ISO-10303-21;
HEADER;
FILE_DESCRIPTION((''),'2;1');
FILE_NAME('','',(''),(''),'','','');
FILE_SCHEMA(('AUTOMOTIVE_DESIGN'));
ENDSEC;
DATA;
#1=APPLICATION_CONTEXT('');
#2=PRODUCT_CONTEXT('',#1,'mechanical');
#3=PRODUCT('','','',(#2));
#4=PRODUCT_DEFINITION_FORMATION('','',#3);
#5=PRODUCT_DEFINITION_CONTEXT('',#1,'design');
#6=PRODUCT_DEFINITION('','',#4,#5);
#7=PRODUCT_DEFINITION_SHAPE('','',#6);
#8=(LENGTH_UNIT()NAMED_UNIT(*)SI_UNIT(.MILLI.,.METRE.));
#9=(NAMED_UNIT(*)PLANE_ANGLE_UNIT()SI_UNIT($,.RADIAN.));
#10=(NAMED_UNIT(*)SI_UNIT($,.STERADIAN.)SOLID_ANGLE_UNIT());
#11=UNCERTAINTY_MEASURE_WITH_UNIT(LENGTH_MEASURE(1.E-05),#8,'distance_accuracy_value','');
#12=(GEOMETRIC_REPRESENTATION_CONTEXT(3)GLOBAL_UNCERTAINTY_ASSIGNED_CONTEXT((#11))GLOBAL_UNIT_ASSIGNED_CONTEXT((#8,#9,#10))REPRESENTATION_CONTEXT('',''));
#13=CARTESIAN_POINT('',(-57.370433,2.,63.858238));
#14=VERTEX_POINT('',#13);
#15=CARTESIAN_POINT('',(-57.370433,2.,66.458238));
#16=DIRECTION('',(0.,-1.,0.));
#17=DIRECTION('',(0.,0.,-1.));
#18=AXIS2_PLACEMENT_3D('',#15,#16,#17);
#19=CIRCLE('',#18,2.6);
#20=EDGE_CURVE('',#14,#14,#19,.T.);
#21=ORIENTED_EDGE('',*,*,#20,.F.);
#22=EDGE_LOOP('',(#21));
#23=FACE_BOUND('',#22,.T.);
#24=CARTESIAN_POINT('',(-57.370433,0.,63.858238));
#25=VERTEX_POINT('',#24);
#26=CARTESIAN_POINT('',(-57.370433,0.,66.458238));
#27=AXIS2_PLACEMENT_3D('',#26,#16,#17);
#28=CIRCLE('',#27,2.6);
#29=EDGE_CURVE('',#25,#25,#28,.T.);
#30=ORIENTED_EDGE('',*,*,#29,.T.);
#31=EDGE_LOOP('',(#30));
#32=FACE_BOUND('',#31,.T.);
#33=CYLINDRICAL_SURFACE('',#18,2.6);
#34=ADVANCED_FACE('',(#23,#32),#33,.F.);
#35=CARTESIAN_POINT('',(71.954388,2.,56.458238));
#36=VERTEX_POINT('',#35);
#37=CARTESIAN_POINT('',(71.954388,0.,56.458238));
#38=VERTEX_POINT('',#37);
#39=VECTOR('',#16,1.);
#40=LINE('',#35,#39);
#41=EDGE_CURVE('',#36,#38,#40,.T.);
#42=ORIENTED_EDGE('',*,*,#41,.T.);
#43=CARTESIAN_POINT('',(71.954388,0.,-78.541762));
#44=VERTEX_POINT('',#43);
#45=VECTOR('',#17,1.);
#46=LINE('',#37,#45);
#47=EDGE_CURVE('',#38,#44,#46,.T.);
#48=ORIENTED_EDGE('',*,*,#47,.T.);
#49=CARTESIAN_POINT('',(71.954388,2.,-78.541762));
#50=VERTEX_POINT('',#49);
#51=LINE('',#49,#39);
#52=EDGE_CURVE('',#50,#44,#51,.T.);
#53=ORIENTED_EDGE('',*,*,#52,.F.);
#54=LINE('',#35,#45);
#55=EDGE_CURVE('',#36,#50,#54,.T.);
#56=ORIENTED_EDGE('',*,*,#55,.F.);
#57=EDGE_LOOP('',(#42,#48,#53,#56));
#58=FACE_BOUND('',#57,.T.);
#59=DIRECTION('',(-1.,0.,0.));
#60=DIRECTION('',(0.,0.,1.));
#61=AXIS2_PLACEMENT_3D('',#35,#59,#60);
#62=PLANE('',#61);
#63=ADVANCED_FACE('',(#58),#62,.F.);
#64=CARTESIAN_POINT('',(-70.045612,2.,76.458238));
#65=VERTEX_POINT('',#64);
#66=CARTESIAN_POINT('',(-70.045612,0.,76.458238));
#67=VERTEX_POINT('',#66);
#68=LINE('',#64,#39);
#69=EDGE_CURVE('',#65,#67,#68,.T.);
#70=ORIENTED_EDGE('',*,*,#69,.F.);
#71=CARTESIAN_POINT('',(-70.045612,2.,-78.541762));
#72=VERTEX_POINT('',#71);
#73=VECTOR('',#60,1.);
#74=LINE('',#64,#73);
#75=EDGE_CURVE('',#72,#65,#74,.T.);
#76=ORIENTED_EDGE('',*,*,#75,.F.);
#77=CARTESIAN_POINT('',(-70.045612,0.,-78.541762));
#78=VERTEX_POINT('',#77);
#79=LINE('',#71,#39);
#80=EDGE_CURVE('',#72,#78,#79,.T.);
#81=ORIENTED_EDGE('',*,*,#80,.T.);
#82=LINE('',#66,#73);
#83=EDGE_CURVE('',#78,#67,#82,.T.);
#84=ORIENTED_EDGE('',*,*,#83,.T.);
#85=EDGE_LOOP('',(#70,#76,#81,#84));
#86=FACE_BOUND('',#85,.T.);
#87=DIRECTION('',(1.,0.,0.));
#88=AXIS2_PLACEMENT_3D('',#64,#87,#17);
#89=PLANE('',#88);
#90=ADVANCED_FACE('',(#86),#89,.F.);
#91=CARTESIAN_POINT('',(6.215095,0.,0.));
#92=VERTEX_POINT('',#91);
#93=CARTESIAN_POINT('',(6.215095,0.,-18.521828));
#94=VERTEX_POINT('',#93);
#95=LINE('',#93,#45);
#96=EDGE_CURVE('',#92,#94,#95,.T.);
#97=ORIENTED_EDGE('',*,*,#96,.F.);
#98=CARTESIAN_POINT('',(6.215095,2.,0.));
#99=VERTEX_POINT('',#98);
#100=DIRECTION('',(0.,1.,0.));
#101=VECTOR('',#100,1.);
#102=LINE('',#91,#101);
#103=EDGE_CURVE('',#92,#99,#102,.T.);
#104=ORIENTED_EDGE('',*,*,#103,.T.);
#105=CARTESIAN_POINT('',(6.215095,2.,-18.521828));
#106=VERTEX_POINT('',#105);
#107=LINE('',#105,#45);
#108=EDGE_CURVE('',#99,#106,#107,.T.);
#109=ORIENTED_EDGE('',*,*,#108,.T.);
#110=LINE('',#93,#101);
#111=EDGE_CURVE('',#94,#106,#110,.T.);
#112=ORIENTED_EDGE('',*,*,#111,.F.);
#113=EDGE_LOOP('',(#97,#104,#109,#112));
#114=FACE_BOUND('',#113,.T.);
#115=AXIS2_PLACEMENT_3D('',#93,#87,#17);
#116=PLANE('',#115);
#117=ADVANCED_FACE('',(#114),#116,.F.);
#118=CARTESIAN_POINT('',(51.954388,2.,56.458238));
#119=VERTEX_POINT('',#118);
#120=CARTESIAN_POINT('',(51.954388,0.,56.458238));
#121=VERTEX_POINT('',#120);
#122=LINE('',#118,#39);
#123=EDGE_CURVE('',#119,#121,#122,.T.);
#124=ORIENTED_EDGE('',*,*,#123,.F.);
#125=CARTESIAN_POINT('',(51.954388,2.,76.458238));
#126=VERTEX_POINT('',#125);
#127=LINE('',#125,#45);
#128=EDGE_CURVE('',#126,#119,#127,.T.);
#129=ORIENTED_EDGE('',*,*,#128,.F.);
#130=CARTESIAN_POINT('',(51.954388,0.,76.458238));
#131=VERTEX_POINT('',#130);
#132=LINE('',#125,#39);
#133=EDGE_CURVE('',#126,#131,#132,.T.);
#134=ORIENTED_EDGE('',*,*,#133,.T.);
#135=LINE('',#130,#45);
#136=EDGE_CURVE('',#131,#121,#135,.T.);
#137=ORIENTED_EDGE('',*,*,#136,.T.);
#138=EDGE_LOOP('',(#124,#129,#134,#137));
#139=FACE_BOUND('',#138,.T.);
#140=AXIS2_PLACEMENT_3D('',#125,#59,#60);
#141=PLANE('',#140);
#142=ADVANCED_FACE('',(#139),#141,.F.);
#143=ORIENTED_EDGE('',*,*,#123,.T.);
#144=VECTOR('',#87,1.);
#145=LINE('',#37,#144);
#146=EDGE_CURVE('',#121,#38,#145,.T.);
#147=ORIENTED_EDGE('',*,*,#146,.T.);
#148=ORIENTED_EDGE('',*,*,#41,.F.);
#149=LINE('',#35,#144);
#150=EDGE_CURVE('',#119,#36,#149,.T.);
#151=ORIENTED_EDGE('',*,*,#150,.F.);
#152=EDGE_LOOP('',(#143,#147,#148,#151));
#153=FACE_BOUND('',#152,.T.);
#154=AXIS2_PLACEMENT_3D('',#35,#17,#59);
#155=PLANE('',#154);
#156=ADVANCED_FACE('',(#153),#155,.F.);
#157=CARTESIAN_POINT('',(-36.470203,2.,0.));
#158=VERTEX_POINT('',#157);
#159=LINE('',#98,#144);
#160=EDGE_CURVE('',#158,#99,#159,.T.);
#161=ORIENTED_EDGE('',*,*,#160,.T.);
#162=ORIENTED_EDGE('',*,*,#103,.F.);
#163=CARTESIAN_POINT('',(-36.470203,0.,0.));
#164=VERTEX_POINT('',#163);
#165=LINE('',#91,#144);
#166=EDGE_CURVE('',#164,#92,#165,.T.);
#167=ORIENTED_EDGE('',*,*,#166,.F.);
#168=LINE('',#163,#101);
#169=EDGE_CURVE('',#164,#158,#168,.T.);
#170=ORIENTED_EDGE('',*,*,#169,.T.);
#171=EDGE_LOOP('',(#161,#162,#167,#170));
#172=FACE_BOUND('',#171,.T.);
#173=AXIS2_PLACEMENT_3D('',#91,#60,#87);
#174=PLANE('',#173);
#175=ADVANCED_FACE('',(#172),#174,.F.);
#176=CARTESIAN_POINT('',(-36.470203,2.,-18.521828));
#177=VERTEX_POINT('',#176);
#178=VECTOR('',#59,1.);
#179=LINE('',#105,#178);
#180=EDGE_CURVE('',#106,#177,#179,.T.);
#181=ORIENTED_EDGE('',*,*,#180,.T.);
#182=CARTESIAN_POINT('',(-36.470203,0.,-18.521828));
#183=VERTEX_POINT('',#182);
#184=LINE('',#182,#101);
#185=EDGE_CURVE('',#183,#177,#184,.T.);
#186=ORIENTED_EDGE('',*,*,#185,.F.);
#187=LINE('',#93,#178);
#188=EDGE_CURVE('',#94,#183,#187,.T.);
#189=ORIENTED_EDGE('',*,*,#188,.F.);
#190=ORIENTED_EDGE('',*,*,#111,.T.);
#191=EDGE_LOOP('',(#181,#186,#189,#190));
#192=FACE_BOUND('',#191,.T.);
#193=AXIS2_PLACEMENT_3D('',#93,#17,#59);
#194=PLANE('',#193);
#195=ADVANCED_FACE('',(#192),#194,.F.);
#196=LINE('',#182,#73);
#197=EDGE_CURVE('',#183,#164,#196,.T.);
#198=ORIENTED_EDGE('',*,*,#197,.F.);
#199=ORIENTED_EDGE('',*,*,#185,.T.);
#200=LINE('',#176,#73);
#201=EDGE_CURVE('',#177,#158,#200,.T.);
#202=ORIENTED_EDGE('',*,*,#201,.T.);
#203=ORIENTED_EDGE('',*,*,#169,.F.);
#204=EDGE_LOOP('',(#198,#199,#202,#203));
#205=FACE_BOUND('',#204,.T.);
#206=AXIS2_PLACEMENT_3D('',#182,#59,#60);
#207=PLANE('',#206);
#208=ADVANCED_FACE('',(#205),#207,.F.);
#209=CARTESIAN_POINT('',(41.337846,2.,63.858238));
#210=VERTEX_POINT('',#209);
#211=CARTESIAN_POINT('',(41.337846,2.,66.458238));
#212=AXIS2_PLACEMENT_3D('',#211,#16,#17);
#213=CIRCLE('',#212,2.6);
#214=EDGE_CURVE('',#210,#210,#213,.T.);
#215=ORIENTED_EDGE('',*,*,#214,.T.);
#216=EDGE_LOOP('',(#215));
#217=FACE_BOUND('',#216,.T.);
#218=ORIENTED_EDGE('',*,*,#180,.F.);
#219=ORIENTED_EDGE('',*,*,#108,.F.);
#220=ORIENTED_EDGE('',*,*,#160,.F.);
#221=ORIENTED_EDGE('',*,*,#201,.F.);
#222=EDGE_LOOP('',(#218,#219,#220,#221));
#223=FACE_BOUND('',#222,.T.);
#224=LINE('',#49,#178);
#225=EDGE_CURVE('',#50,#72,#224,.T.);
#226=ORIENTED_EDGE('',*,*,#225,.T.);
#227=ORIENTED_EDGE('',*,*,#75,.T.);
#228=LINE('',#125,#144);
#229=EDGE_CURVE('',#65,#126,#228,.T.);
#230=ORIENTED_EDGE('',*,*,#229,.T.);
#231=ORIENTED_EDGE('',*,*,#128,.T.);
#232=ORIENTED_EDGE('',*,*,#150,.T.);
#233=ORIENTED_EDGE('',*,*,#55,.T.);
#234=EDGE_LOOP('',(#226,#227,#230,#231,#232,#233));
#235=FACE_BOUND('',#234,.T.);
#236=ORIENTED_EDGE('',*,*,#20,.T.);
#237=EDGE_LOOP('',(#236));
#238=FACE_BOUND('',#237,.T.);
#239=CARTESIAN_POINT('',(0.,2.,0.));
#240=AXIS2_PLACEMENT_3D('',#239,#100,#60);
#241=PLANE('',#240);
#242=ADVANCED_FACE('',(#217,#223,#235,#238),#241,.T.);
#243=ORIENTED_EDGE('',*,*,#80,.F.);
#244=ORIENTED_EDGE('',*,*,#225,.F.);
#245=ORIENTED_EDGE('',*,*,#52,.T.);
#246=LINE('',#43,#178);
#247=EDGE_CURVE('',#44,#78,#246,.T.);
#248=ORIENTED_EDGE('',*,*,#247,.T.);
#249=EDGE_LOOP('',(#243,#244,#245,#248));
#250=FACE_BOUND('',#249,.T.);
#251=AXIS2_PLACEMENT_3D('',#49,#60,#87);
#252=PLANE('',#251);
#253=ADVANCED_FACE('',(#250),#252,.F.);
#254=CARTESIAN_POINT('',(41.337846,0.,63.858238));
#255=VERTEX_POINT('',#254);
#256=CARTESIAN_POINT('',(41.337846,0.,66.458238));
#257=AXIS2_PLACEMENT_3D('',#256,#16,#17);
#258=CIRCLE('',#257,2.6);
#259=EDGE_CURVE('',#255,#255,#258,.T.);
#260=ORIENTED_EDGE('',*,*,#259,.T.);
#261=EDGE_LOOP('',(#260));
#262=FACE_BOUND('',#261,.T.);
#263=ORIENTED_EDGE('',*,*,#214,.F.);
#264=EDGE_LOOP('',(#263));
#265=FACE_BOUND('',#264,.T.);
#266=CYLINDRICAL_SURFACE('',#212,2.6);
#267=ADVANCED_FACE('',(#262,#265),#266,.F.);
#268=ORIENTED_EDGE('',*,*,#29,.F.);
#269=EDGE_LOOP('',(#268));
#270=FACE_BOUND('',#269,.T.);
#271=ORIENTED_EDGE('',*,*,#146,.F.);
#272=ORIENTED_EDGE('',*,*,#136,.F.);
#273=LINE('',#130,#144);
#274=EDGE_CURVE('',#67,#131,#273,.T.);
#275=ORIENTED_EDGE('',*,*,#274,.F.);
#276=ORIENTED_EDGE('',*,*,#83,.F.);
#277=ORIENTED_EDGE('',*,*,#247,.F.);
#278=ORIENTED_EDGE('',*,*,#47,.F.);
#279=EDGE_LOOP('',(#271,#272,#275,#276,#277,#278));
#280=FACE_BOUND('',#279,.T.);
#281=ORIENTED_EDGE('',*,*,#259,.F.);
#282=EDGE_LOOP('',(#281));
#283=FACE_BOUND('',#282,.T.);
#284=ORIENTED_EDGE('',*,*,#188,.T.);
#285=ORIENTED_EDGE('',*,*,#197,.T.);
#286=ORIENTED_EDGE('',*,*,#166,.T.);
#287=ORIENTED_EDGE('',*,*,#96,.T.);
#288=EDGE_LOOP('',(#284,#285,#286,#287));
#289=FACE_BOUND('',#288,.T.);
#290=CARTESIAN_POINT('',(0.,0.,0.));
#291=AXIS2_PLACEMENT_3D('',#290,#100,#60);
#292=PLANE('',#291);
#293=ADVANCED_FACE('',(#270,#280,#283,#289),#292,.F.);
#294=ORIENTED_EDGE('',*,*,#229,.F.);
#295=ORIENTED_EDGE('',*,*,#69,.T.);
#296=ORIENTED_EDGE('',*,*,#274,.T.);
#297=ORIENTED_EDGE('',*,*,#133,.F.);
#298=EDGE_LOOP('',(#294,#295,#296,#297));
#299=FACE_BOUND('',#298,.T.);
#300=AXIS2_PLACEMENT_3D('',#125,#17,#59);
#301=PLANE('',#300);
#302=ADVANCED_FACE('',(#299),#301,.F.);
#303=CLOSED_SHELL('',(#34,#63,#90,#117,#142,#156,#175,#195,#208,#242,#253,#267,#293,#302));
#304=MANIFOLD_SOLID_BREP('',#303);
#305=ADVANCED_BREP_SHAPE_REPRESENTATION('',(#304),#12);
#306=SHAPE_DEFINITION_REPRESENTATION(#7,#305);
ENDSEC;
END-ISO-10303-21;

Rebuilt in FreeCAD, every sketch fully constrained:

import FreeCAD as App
import Part
import Sketcher

doc = App.newDocument("Part")
body = doc.addObject("PartDesign::Body", "Body")

sketch1 = body.newObject("Sketcher::SketchObject", "Sketch")
sketch1.AttachmentSupport = (doc.getObject("XZ_Plane"), [""])
sketch1.MapMode = "FlatFace"
sketch1.addGeometry(Part.LineSegment(App.Vector(-70, 76, 0), App.Vector(52, 76, 0)), False)
sketch1.addGeometry(Part.LineSegment(App.Vector(52, 76, 0), App.Vector(52, 56, 0)), False)
sketch1.addGeometry(Part.LineSegment(App.Vector(52, 56, 0), App.Vector(72, 56, 0)), False)
sketch1.addGeometry(Part.LineSegment(App.Vector(72, 56, 0), App.Vector(72, -79, 0)), False)
sketch1.addGeometry(Part.LineSegment(App.Vector(72, -79, 0), App.Vector(-70, -79, 0)), False)
sketch1.addGeometry(Part.LineSegment(App.Vector(-70, -79, 0), App.Vector(-70, 76, 0)), False)
sketch1.addConstraint(Sketcher.Constraint("Coincident", 0, 2, 1, 1))
sketch1.addConstraint(Sketcher.Constraint("Coincident", 1, 2, 2, 1))
sketch1.addConstraint(Sketcher.Constraint("Coincident", 2, 2, 3, 1))
sketch1.addConstraint(Sketcher.Constraint("Coincident", 3, 2, 4, 1))
sketch1.addConstraint(Sketcher.Constraint("Coincident", 4, 2, 5, 1))
sketch1.addConstraint(Sketcher.Constraint("Coincident", 5, 2, 0, 1))
sketch1.addConstraint(Sketcher.Constraint("Horizontal", 0))
sketch1.addConstraint(Sketcher.Constraint("Vertical", 1))
sketch1.addConstraint(Sketcher.Constraint("Horizontal", 2))
sketch1.addConstraint(Sketcher.Constraint("Vertical", 3))
sketch1.addConstraint(Sketcher.Constraint("Horizontal", 4))
sketch1.addConstraint(Sketcher.Constraint("Vertical", 5))
sketch1.addConstraint(Sketcher.Constraint("Equal", 2, 1))
sketch1.addConstraint(Sketcher.Constraint("DistanceX", 0, 1, 0, 2, 122.0))
sketch1.addConstraint(Sketcher.Constraint("DistanceX", 2, 1, 2, 2, 20.0))
sketch1.addConstraint(Sketcher.Constraint("DistanceY", 3, 2, 3, 1, 135.0))
sketch1.addConstraint(Sketcher.Constraint("DistanceY", -1, 1, 0, 2, 76.458238))
sketch1.addConstraint(Sketcher.Constraint("DistanceX", -1, 1, 0, 2, 51.954388))
pad1 = body.newObject("PartDesign::Pad", "Pad")
pad1.Profile = sketch1
pad1.Length = 2
pad1.Reversed = True

sketch2 = body.newObject("Sketcher::SketchObject", "Sketch001")
sketch2.AttachmentSupport = (doc.getObject("XZ_Plane"), [""])
sketch2.MapMode = "FlatFace"
sketch2.AttachmentOffset = App.Placement(App.Vector(0, 0, -2), App.Rotation())
sketch2.addGeometry(Part.LineSegment(App.Vector(-36, -19, 0), App.Vector(-36, 0, 0)), False)
sketch2.addGeometry(Part.LineSegment(App.Vector(-36, 0, 0), App.Vector(6, 0, 0)), False)
sketch2.addGeometry(Part.LineSegment(App.Vector(6, 0, 0), App.Vector(6, -19, 0)), False)
sketch2.addGeometry(Part.LineSegment(App.Vector(6, -19, 0), App.Vector(-36, -19, 0)), False)
sketch2.addConstraint(Sketcher.Constraint("Coincident", 0, 2, 1, 1))
sketch2.addConstraint(Sketcher.Constraint("Coincident", 1, 2, 2, 1))
sketch2.addConstraint(Sketcher.Constraint("Coincident", 2, 2, 3, 1))
sketch2.addConstraint(Sketcher.Constraint("Coincident", 3, 2, 0, 1))
sketch2.addConstraint(Sketcher.Constraint("Vertical", 0))
sketch2.addConstraint(Sketcher.Constraint("Horizontal", 1))
sketch2.addConstraint(Sketcher.Constraint("Vertical", 2))
sketch2.addConstraint(Sketcher.Constraint("Horizontal", 3))
sketch2.addConstraint(Sketcher.Constraint("PointOnObject", 0, 2, -1))
sketch2.addConstraint(Sketcher.Constraint("DistanceX", 1, 1, 1, 2, 42.685297))
sketch2.addConstraint(Sketcher.Constraint("DistanceY", 0, 1, 0, 2, 18.521828))
sketch2.addConstraint(Sketcher.Constraint("DistanceX", 0, 2, -1, 1, 36.470203))
pocket1 = body.newObject("PartDesign::Pocket", "Pocket")
pocket1.Profile = sketch2
pocket1.Length = 2
pocket1.Reversed = True

sketch3 = body.newObject("Sketcher::SketchObject", "Sketch002")
sketch3.AttachmentSupport = (doc.getObject("XZ_Plane"), [""])
sketch3.MapMode = "FlatFace"
sketch3.addGeometry(Part.Circle(App.Vector(41.3, 66.5, 0), App.Vector(0, 0, 1), 2.6), False)
sketch3.addGeometry(Part.Circle(App.Vector(-57.4, 66.5, 0), App.Vector(0, 0, 1), 2.6), False)
sketch3.addConstraint(Sketcher.Constraint("Equal", 0, 1))
sketch3.addConstraint(Sketcher.Constraint("Horizontal", 0, 3, 1, 3))
sketch3.addConstraint(Sketcher.Constraint("Diameter", 0, 5.2))
sketch3.addConstraint(Sketcher.Constraint("DistanceY", -1, 1, 0, 3, 66.458238))
sketch3.addConstraint(Sketcher.Constraint("DistanceX", 1, 3, 0, 3, 98.708279))
sketch3.addConstraint(Sketcher.Constraint("DistanceX", -1, 1, 0, 3, 41.337846))
pocket2 = body.newObject("PartDesign::Pocket", "Pocket001")
pocket2.Profile = sketch3
pocket2.Length = 2

doc.recompute()
